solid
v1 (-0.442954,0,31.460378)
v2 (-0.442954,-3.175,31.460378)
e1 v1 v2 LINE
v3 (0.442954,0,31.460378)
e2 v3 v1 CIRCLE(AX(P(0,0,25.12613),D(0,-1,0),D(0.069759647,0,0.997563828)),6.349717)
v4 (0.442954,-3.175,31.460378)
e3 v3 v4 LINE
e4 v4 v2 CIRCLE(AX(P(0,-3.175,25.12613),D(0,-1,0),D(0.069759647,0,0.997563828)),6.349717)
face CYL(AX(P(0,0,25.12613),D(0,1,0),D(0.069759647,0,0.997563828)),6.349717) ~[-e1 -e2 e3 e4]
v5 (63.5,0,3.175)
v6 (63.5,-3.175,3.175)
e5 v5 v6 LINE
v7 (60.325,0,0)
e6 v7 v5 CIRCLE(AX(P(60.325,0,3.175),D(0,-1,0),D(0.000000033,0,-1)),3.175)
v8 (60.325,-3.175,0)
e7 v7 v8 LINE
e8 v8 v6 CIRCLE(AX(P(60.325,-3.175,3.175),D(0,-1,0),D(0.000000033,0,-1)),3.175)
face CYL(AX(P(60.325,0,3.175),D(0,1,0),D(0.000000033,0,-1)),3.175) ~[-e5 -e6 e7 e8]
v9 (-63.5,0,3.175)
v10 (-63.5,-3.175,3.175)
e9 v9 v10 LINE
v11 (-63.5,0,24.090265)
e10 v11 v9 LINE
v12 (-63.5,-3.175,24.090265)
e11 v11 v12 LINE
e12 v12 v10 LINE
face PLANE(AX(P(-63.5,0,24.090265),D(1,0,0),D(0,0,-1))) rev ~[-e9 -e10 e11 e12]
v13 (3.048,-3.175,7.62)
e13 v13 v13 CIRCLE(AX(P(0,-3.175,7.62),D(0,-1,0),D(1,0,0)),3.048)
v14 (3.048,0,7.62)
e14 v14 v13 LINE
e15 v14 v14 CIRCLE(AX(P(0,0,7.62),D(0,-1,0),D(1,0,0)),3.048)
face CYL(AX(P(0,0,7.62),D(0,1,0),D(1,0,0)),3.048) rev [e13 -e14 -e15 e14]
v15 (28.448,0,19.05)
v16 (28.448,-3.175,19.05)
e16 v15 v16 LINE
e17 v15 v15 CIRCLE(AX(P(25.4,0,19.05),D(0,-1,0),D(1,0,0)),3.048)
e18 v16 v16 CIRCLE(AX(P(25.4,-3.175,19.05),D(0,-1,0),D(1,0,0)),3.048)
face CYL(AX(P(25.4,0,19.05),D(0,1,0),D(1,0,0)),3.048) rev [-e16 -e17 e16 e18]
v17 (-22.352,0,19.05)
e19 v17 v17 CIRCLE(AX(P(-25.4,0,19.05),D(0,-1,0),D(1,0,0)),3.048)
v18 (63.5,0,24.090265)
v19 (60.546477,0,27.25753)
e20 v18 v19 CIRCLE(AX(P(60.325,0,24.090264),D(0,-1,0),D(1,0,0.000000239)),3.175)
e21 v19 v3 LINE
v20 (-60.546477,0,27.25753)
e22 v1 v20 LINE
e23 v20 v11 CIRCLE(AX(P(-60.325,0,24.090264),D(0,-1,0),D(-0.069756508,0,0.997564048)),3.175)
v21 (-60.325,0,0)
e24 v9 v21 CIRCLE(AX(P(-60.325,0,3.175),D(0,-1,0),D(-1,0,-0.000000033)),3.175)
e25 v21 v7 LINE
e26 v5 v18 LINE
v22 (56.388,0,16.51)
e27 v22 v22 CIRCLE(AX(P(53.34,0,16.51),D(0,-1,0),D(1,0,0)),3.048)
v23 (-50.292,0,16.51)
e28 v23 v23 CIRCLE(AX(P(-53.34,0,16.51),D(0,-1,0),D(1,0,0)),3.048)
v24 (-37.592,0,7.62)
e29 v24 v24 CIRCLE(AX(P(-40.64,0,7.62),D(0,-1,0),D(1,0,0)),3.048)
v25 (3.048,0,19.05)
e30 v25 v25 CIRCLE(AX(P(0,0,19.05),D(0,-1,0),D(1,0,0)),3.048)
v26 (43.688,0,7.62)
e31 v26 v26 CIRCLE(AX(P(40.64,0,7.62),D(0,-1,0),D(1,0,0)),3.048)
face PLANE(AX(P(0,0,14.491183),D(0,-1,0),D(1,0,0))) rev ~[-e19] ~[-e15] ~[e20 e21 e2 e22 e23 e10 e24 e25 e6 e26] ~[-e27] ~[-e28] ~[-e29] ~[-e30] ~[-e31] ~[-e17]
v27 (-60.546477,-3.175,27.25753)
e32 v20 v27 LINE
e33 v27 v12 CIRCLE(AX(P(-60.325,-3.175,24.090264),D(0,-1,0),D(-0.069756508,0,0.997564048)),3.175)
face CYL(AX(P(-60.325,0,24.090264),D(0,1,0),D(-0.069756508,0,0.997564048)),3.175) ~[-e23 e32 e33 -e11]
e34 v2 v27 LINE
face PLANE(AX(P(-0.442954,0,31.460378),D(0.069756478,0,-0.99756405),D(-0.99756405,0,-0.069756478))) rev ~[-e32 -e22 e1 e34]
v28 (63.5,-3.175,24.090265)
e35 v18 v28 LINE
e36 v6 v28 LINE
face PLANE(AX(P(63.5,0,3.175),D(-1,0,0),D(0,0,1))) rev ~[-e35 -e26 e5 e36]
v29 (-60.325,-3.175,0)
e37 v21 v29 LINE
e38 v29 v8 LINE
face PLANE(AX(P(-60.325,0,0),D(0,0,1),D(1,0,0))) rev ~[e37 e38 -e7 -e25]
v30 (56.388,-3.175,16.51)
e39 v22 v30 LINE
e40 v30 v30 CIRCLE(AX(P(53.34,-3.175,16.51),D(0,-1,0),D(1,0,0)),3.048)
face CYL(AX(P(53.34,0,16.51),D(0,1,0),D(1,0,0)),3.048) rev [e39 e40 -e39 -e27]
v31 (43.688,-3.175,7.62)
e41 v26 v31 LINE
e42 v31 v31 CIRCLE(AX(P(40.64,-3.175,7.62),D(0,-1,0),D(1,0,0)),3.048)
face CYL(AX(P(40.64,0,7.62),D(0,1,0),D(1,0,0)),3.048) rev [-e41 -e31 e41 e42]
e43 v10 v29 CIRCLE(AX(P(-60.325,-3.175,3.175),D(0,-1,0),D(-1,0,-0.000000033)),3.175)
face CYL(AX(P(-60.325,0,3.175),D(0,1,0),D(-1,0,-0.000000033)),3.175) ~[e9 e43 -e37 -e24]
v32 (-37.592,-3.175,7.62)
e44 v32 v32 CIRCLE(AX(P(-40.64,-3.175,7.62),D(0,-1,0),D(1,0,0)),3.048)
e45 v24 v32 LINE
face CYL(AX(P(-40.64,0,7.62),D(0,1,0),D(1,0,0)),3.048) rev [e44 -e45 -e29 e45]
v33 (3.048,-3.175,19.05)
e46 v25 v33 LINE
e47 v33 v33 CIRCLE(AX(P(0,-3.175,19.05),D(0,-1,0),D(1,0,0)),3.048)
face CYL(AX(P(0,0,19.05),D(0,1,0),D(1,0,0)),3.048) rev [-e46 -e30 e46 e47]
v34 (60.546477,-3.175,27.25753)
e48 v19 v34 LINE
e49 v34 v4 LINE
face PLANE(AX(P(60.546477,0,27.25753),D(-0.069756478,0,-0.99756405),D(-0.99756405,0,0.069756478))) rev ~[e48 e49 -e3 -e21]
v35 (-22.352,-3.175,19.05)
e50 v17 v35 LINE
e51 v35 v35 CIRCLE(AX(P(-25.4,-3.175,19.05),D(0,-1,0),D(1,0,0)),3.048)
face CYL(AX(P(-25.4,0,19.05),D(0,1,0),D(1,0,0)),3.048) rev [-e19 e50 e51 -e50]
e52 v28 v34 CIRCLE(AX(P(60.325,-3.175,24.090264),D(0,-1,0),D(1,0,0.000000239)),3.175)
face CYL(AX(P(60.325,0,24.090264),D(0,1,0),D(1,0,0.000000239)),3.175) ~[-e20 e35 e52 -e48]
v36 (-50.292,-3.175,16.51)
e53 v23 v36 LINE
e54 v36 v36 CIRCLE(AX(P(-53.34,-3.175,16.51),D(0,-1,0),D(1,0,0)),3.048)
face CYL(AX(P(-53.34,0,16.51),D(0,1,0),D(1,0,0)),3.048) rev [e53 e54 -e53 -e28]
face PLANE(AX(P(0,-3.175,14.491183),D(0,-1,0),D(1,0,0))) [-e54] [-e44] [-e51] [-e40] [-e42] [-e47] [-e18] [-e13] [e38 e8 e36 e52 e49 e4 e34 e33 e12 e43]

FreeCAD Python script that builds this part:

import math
import FreeCAD as App
import Part
import Sketcher
from FreeCAD import Vector
Q = App.Units.Quantity

doc = App.newDocument("Part")
body = doc.addObject("PartDesign::Body", "Body")

# Sketch on XZ plane
sketch1 = body.newObject("Sketcher::SketchObject", "Sketch")
sketch1.AttachmentSupport = (doc.getObject("XZ_Plane"), [""])
sketch1.MapMode = "FlatFace"
sketch1.addGeometry(Part.ArcOfCircle(Part.Circle(Vector(-60.325, 3.175, 0), Vector(0, 0, 1), 3.175), math.radians(-179.999998), math.radians(-90.000002)), False)
sketch1.addGeometry(Part.LineSegment(Vector(-60.325, 0, 0), Vector(60.325, 0, 0)), False)
sketch1.addGeometry(Part.ArcOfCircle(Part.Circle(Vector(60.325, 3.175, 0), Vector(0, 0, 1), 3.175), math.radians(-89.999998), math.radians(-0.000002)), False)
sketch1.addGeometry(Part.LineSegment(Vector(63.5, 3.175, 0), Vector(63.5, 24.090265, 0)), False)
sketch1.addGeometry(Part.ArcOfCircle(Part.Circle(Vector(60.325, 24.090264, 0), Vector(0, 0, 1), 3.175), math.radians(0.000014), math.radians(85.999998)), False)
sketch1.addGeometry(Part.LineSegment(Vector(60.546477, 27.25753, 0), Vector(0.442954, 31.460378, 0)), False)
sketch1.addGeometry(Part.ArcOfCircle(Part.Circle(Vector(0, 25.12613, 0), Vector(0, 0, 1), 6.349717), math.radians(85.999818), math.radians(94.000182)), False)
sketch1.addGeometry(Part.LineSegment(Vector(-0.442954, 31.460378, 0), Vector(-60.546477, 27.25753, 0)), False)
sketch1.addGeometry(Part.ArcOfCircle(Part.Circle(Vector(-60.325, 24.090264, 0), Vector(0, 0, 1), 3.175), math.radians(94.000002), math.radians(179.999986)), False)
sketch1.addGeometry(Part.LineSegment(Vector(-63.5, 24.090265, 0), Vector(-63.5, 3.175, 0)), False)
sketch1.addGeometry(Part.Circle(Vector(-40.64, 7.62, 0), Vector(0, 0, 1), 3.048), False)
sketch1.addGeometry(Part.Circle(Vector(0, 7.62, 0), Vector(0, 0, 1), 3.048), False)
sketch1.addGeometry(Part.Circle(Vector(40.64, 7.62, 0), Vector(0, 0, 1), 3.048), False)
sketch1.addGeometry(Part.Circle(Vector(-53.34, 16.51, 0), Vector(0, 0, 1), 3.048), False)
sketch1.addGeometry(Part.Circle(Vector(-25.4, 19.05, 0), Vector(0, 0, 1), 3.048), False)
sketch1.addGeometry(Part.Circle(Vector(53.34, 16.51, 0), Vector(0, 0, 1), 3.048), False)
sketch1.addGeometry(Part.Circle(Vector(0, 19.05, 0), Vector(0, 0, 1), 3.048), False)
sketch1.addGeometry(Part.Circle(Vector(25.4, 19.05, 0), Vector(0, 0, 1), 3.048), False)
sketch1.addConstraint(Sketcher.Constraint("Tangent", 0, 2, 1, 1))
sketch1.addConstraint(Sketcher.Constraint("Tangent", 1, 2, 2, 1))
sketch1.addConstraint(Sketcher.Constraint("Tangent", 2, 2, 3, 1))
sketch1.addConstraint(Sketcher.Constraint("Tangent", 3, 2, 4, 1))
sketch1.addConstraint(Sketcher.Constraint("Tangent", 4, 2, 5, 1))
sketch1.addConstraint(Sketcher.Constraint("Coincident", 5, 2, 6, 1))
sketch1.addConstraint(Sketcher.Constraint("Coincident", 6, 2, 7, 1))
sketch1.addConstraint(Sketcher.Constraint("Tangent", 7, 2, 8, 1))
sketch1.addConstraint(Sketcher.Constraint("Tangent", 8, 2, 9, 1))
sketch1.addConstraint(Sketcher.Constraint("Tangent", 9, 2, 0, 1))
sketch1.addConstraint(Sketcher.Constraint("Horizontal", 1))
sketch1.addConstraint(Sketcher.Constraint("Vertical", 3))
sketch1.addConstraint(Sketcher.Constraint("Vertical", 9))
sketch1.addConstraint(Sketcher.Constraint("Equal", 0, 2))
sketch1.addConstraint(Sketcher.Constraint("Equal", 2, 4))
sketch1.addConstraint(Sketcher.Constraint("Equal", 4, 8))
sketch1.addConstraint(Sketcher.Constraint("Equal", 10, 11))
sketch1.addConstraint(Sketcher.Constraint("Equal", 11, 12))
sketch1.addConstraint(Sketcher.Constraint("Equal", 12, 13))
sketch1.addConstraint(Sketcher.Constraint("Equal", 13, 14))
sketch1.addConstraint(Sketcher.Constraint("Equal", 14, 15))
sketch1.addConstraint(Sketcher.Constraint("Equal", 15, 16))
sketch1.addConstraint(Sketcher.Constraint("Equal", 16, 17))
sketch1.addConstraint(Sketcher.Constraint("Symmetric", 0, 2, 1, 2, -1, 1))
sketch1.addConstraint(Sketcher.Constraint("Symmetric", 10, 3, 12, 3, -2))
sketch1.addConstraint(Sketcher.Constraint("Symmetric", 13, 3, 15, 3, -2))
sketch1.addConstraint(Sketcher.Constraint("Symmetric", 14, 3, 17, 3, -2))
sketch1.addConstraint(Sketcher.Constraint("Symmetric", 5, 2, 6, 2, -2))
sketch1.addConstraint(Sketcher.Constraint("PointOnObject", 11, 3, -2))
sketch1.addConstraint(Sketcher.Constraint("PointOnObject", 16, 3, -2))
sketch1.addConstraint(Sketcher.Constraint("Horizontal", 4, 3, 8, 3))
sketch1.addConstraint(Sketcher.Constraint("Horizontal", 10, 3, 11, 3))
sketch1.addConstraint(Sketcher.Constraint("Horizontal", 14, 3, 16, 3))
sketch1.addConstraint(Sketcher.Constraint("Diameter", 10, Q("0.24 in")))
sketch1.addConstraint(Sketcher.Constraint("DistanceX", 14, 3, -1, 1, Q("1 in")))
sketch1.addConstraint(Sketcher.Constraint("Angle", 5, Q("176 deg")))
sketch1.addConstraint(Sketcher.Constraint("Radius", 0, Q("0.125 in")))
sketch1.addConstraint(Sketcher.Constraint("DistanceX", 1, 1, 1, 2, Q("4.75 in")))
sketch1.addConstraint(Sketcher.Constraint("DistanceX", 10, 3, -1, 1, Q("1.6 in")))
sketch1.addConstraint(Sketcher.Constraint("DistanceY", -1, 1, 10, 3, Q("0.3 in")))
sketch1.addConstraint(Sketcher.Constraint("DistanceX", 13, 3, -1, 1, Q("2.1 in")))
sketch1.addConstraint(Sketcher.Constraint("DistanceY", 13, 3, 14, 3, Q("0.1 in")))
sketch1.addConstraint(Sketcher.Constraint("DistanceY", -1, 1, 13, 3, Q("0.65 in")))
sketch1.addConstraint(Sketcher.Constraint("Radius", 6, 6.349717))
sketch1.addConstraint(Sketcher.Constraint("Distance", 5, 60.25029))
sketch1.addConstraint(Sketcher.Constraint("DistanceY", 3, 1, 3, 2, 20.915265))
pad1 = body.newObject("PartDesign::Pad", "Pad")
pad1.Profile = sketch1
pad1.Length = Q("0.125 in")

doc.recompute()
